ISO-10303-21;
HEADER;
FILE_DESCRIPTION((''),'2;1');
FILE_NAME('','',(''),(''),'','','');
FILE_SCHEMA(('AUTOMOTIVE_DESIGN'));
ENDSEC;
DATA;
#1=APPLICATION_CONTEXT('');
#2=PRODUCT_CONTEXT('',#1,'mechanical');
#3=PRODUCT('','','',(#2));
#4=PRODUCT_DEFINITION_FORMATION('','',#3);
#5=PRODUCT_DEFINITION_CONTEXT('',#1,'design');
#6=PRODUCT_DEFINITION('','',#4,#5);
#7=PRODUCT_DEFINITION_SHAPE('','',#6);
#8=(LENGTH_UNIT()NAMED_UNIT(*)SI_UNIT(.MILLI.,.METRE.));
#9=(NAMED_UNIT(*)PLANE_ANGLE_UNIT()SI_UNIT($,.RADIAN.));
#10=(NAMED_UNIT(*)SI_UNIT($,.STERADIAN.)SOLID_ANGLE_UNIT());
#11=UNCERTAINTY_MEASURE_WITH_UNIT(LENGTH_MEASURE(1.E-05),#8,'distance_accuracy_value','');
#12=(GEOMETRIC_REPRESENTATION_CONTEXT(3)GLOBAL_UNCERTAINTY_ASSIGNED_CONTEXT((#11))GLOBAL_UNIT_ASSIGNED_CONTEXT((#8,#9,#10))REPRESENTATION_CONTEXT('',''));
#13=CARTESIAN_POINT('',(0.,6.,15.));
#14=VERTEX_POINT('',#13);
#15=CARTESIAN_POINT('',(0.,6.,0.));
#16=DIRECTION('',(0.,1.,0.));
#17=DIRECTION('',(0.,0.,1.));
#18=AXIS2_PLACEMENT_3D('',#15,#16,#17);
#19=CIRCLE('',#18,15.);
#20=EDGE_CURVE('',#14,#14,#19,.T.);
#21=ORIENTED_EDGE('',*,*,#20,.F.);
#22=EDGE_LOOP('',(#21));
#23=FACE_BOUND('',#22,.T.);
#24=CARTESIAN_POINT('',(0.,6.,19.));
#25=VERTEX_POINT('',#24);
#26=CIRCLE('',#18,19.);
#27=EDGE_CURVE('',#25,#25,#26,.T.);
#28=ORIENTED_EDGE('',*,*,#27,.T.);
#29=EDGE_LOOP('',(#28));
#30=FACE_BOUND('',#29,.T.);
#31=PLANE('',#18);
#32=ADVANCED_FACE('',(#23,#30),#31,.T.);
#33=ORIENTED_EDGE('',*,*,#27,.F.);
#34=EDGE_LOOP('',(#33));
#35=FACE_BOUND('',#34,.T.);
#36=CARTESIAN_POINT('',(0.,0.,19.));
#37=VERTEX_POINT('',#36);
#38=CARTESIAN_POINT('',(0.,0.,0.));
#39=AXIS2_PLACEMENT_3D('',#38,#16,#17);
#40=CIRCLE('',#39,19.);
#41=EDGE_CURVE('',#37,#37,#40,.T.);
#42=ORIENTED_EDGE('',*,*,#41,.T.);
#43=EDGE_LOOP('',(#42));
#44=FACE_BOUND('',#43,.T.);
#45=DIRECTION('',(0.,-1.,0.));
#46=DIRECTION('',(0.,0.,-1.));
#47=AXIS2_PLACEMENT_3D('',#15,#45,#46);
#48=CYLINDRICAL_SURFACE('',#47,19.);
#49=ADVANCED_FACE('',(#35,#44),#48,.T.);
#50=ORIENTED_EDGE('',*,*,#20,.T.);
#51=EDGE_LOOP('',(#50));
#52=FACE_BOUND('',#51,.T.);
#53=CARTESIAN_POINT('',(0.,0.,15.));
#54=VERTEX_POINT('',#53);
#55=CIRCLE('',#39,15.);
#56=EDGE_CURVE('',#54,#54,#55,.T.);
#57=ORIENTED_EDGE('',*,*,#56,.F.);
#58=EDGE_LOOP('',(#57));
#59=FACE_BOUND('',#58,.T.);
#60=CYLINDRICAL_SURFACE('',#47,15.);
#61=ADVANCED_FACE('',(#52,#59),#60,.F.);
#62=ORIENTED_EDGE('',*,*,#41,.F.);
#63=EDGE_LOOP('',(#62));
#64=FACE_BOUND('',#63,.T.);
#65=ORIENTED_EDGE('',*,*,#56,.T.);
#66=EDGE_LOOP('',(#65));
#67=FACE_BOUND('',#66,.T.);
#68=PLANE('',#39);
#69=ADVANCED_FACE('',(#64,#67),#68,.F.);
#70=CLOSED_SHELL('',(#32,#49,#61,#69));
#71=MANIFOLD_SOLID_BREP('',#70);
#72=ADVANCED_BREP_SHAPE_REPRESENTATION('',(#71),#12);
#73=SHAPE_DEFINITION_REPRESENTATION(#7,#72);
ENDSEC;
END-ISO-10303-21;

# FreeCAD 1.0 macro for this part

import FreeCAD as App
import Part
import Sketcher

V = App.Vector
Q = App.Units.Quantity

doc = App.newDocument("Part")
body = doc.addObject("PartDesign::Body", "Body")

# Sketch on XZ plane
sketch1 = body.newObject("Sketcher::SketchObject", "Sketch")
sketch1.AttachmentSupport = (doc.getObject("XZ_Plane"), [""])
sketch1.MapMode = "FlatFace"
sketch1.addGeometry([
    Part.Circle(V(0, 0, 0), V(0, 0, 1), 19),
    Part.Circle(V(0, 0, 0), V(0, 0, 1), 15),
], False)
sketch1.addConstraint([
    Sketcher.Constraint("Coincident", 0, 3, -1, 1),
    Sketcher.Constraint("Coincident", 1, 3, -1, 1),
    Sketcher.Constraint("Diameter", 0, Q("38 mm")),
    Sketcher.Constraint("Diameter", 1, Q("30 mm")),
])
pad1 = body.newObject("PartDesign::Pad", "Pad")
pad1.Profile = sketch1
pad1.Length = 6
pad1.Reversed = True

doc.recompute()
